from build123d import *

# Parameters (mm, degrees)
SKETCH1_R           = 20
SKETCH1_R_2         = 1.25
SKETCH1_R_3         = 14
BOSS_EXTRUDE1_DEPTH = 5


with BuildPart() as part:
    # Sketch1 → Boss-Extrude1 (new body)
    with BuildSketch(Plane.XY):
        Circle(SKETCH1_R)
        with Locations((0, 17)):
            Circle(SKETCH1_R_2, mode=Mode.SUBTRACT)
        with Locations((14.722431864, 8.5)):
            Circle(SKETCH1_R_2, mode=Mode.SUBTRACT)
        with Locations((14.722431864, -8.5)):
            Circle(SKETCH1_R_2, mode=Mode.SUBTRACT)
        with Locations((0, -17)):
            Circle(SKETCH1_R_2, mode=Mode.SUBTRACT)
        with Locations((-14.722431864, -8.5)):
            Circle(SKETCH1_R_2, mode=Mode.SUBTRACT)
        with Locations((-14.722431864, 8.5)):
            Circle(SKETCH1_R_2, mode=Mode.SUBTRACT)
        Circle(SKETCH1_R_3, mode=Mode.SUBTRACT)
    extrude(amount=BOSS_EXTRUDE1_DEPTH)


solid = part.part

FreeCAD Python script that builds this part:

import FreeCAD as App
import Part
import Sketcher

doc = App.newDocument("Part")
body = doc.addObject("PartDesign::Body", "Body")

sketch1 = body.newObject("Sketcher::SketchObject", "Sketch")
sketch1.AttachmentSupport = (doc.getObject("XY_Plane"), [""])
sketch1.MapMode = "FlatFace"
sketch1.addGeometry([
    Part.Circle(App.Vector(0, 0, 0), App.Vector(0, 0, 1), 20),
    Part.Circle(App.Vector(0, -17, 0), App.Vector(0, 0, 1), 1.25),
    Part.Circle(App.Vector(-14.722432, -8.5, 0), App.Vector(0, 0, 1), 1.25),
    Part.Circle(App.Vector(14.722432, -8.5, 0), App.Vector(0, 0, 1), 1.25),
    Part.Circle(App.Vector(-14.722432, 8.5, 0), App.Vector(0, 0, 1), 1.25),
    Part.Circle(App.Vector(0, 0, 0), App.Vector(0, 0, 1), 14),
    Part.Circle(App.Vector(0, 17, 0), App.Vector(0, 0, 1), 1.25),
    Part.Circle(App.Vector(14.722432, 8.5, 0), App.Vector(0, 0, 1), 1.25),
], False)
sketch1.addConstraint([
    Sketcher.Constraint("Coincident", 0, 3, -1, 1),
    Sketcher.Constraint("Coincident", 5, 3, -1, 1),
    Sketcher.Constraint("Equal", 1, 2),
    Sketcher.Constraint("Equal", 2, 3),
    Sketcher.Constraint("Equal", 3, 4),
    Sketcher.Constraint("Equal", 4, 6),
    Sketcher.Constraint("Equal", 6, 7),
    Sketcher.Constraint("Symmetric", 3, 3, 4, 3, -1, 1),
    Sketcher.Constraint("Symmetric", 1, 3, 6, 3, -1, 1),
    Sketcher.Constraint("Symmetric", 2, 3, 7, 3, -1, 1),
    Sketcher.Constraint("Symmetric", 2, 3, 3, 3, -2),
    Sketcher.Constraint("PointOnObject", 1, 3, -2),
    Sketcher.Constraint("Diameter", 0, 40.0),
    Sketcher.Constraint("Diameter", 5, 28.0),
    Sketcher.Constraint("Diameter", 1, 2.5),
    Sketcher.Constraint("DistanceY", 1, 3, -1, 1, 17.0),
    Sketcher.Constraint("DistanceY", 2, 3, 4, 3, 17.0),
    Sketcher.Constraint("DistanceX", 2, 3, -1, 1, 14.722432),
])
pad1 = body.newObject("PartDesign::Pad", "Pad")
pad1.Profile = sketch1
pad1.Length = 5

doc.recompute()
